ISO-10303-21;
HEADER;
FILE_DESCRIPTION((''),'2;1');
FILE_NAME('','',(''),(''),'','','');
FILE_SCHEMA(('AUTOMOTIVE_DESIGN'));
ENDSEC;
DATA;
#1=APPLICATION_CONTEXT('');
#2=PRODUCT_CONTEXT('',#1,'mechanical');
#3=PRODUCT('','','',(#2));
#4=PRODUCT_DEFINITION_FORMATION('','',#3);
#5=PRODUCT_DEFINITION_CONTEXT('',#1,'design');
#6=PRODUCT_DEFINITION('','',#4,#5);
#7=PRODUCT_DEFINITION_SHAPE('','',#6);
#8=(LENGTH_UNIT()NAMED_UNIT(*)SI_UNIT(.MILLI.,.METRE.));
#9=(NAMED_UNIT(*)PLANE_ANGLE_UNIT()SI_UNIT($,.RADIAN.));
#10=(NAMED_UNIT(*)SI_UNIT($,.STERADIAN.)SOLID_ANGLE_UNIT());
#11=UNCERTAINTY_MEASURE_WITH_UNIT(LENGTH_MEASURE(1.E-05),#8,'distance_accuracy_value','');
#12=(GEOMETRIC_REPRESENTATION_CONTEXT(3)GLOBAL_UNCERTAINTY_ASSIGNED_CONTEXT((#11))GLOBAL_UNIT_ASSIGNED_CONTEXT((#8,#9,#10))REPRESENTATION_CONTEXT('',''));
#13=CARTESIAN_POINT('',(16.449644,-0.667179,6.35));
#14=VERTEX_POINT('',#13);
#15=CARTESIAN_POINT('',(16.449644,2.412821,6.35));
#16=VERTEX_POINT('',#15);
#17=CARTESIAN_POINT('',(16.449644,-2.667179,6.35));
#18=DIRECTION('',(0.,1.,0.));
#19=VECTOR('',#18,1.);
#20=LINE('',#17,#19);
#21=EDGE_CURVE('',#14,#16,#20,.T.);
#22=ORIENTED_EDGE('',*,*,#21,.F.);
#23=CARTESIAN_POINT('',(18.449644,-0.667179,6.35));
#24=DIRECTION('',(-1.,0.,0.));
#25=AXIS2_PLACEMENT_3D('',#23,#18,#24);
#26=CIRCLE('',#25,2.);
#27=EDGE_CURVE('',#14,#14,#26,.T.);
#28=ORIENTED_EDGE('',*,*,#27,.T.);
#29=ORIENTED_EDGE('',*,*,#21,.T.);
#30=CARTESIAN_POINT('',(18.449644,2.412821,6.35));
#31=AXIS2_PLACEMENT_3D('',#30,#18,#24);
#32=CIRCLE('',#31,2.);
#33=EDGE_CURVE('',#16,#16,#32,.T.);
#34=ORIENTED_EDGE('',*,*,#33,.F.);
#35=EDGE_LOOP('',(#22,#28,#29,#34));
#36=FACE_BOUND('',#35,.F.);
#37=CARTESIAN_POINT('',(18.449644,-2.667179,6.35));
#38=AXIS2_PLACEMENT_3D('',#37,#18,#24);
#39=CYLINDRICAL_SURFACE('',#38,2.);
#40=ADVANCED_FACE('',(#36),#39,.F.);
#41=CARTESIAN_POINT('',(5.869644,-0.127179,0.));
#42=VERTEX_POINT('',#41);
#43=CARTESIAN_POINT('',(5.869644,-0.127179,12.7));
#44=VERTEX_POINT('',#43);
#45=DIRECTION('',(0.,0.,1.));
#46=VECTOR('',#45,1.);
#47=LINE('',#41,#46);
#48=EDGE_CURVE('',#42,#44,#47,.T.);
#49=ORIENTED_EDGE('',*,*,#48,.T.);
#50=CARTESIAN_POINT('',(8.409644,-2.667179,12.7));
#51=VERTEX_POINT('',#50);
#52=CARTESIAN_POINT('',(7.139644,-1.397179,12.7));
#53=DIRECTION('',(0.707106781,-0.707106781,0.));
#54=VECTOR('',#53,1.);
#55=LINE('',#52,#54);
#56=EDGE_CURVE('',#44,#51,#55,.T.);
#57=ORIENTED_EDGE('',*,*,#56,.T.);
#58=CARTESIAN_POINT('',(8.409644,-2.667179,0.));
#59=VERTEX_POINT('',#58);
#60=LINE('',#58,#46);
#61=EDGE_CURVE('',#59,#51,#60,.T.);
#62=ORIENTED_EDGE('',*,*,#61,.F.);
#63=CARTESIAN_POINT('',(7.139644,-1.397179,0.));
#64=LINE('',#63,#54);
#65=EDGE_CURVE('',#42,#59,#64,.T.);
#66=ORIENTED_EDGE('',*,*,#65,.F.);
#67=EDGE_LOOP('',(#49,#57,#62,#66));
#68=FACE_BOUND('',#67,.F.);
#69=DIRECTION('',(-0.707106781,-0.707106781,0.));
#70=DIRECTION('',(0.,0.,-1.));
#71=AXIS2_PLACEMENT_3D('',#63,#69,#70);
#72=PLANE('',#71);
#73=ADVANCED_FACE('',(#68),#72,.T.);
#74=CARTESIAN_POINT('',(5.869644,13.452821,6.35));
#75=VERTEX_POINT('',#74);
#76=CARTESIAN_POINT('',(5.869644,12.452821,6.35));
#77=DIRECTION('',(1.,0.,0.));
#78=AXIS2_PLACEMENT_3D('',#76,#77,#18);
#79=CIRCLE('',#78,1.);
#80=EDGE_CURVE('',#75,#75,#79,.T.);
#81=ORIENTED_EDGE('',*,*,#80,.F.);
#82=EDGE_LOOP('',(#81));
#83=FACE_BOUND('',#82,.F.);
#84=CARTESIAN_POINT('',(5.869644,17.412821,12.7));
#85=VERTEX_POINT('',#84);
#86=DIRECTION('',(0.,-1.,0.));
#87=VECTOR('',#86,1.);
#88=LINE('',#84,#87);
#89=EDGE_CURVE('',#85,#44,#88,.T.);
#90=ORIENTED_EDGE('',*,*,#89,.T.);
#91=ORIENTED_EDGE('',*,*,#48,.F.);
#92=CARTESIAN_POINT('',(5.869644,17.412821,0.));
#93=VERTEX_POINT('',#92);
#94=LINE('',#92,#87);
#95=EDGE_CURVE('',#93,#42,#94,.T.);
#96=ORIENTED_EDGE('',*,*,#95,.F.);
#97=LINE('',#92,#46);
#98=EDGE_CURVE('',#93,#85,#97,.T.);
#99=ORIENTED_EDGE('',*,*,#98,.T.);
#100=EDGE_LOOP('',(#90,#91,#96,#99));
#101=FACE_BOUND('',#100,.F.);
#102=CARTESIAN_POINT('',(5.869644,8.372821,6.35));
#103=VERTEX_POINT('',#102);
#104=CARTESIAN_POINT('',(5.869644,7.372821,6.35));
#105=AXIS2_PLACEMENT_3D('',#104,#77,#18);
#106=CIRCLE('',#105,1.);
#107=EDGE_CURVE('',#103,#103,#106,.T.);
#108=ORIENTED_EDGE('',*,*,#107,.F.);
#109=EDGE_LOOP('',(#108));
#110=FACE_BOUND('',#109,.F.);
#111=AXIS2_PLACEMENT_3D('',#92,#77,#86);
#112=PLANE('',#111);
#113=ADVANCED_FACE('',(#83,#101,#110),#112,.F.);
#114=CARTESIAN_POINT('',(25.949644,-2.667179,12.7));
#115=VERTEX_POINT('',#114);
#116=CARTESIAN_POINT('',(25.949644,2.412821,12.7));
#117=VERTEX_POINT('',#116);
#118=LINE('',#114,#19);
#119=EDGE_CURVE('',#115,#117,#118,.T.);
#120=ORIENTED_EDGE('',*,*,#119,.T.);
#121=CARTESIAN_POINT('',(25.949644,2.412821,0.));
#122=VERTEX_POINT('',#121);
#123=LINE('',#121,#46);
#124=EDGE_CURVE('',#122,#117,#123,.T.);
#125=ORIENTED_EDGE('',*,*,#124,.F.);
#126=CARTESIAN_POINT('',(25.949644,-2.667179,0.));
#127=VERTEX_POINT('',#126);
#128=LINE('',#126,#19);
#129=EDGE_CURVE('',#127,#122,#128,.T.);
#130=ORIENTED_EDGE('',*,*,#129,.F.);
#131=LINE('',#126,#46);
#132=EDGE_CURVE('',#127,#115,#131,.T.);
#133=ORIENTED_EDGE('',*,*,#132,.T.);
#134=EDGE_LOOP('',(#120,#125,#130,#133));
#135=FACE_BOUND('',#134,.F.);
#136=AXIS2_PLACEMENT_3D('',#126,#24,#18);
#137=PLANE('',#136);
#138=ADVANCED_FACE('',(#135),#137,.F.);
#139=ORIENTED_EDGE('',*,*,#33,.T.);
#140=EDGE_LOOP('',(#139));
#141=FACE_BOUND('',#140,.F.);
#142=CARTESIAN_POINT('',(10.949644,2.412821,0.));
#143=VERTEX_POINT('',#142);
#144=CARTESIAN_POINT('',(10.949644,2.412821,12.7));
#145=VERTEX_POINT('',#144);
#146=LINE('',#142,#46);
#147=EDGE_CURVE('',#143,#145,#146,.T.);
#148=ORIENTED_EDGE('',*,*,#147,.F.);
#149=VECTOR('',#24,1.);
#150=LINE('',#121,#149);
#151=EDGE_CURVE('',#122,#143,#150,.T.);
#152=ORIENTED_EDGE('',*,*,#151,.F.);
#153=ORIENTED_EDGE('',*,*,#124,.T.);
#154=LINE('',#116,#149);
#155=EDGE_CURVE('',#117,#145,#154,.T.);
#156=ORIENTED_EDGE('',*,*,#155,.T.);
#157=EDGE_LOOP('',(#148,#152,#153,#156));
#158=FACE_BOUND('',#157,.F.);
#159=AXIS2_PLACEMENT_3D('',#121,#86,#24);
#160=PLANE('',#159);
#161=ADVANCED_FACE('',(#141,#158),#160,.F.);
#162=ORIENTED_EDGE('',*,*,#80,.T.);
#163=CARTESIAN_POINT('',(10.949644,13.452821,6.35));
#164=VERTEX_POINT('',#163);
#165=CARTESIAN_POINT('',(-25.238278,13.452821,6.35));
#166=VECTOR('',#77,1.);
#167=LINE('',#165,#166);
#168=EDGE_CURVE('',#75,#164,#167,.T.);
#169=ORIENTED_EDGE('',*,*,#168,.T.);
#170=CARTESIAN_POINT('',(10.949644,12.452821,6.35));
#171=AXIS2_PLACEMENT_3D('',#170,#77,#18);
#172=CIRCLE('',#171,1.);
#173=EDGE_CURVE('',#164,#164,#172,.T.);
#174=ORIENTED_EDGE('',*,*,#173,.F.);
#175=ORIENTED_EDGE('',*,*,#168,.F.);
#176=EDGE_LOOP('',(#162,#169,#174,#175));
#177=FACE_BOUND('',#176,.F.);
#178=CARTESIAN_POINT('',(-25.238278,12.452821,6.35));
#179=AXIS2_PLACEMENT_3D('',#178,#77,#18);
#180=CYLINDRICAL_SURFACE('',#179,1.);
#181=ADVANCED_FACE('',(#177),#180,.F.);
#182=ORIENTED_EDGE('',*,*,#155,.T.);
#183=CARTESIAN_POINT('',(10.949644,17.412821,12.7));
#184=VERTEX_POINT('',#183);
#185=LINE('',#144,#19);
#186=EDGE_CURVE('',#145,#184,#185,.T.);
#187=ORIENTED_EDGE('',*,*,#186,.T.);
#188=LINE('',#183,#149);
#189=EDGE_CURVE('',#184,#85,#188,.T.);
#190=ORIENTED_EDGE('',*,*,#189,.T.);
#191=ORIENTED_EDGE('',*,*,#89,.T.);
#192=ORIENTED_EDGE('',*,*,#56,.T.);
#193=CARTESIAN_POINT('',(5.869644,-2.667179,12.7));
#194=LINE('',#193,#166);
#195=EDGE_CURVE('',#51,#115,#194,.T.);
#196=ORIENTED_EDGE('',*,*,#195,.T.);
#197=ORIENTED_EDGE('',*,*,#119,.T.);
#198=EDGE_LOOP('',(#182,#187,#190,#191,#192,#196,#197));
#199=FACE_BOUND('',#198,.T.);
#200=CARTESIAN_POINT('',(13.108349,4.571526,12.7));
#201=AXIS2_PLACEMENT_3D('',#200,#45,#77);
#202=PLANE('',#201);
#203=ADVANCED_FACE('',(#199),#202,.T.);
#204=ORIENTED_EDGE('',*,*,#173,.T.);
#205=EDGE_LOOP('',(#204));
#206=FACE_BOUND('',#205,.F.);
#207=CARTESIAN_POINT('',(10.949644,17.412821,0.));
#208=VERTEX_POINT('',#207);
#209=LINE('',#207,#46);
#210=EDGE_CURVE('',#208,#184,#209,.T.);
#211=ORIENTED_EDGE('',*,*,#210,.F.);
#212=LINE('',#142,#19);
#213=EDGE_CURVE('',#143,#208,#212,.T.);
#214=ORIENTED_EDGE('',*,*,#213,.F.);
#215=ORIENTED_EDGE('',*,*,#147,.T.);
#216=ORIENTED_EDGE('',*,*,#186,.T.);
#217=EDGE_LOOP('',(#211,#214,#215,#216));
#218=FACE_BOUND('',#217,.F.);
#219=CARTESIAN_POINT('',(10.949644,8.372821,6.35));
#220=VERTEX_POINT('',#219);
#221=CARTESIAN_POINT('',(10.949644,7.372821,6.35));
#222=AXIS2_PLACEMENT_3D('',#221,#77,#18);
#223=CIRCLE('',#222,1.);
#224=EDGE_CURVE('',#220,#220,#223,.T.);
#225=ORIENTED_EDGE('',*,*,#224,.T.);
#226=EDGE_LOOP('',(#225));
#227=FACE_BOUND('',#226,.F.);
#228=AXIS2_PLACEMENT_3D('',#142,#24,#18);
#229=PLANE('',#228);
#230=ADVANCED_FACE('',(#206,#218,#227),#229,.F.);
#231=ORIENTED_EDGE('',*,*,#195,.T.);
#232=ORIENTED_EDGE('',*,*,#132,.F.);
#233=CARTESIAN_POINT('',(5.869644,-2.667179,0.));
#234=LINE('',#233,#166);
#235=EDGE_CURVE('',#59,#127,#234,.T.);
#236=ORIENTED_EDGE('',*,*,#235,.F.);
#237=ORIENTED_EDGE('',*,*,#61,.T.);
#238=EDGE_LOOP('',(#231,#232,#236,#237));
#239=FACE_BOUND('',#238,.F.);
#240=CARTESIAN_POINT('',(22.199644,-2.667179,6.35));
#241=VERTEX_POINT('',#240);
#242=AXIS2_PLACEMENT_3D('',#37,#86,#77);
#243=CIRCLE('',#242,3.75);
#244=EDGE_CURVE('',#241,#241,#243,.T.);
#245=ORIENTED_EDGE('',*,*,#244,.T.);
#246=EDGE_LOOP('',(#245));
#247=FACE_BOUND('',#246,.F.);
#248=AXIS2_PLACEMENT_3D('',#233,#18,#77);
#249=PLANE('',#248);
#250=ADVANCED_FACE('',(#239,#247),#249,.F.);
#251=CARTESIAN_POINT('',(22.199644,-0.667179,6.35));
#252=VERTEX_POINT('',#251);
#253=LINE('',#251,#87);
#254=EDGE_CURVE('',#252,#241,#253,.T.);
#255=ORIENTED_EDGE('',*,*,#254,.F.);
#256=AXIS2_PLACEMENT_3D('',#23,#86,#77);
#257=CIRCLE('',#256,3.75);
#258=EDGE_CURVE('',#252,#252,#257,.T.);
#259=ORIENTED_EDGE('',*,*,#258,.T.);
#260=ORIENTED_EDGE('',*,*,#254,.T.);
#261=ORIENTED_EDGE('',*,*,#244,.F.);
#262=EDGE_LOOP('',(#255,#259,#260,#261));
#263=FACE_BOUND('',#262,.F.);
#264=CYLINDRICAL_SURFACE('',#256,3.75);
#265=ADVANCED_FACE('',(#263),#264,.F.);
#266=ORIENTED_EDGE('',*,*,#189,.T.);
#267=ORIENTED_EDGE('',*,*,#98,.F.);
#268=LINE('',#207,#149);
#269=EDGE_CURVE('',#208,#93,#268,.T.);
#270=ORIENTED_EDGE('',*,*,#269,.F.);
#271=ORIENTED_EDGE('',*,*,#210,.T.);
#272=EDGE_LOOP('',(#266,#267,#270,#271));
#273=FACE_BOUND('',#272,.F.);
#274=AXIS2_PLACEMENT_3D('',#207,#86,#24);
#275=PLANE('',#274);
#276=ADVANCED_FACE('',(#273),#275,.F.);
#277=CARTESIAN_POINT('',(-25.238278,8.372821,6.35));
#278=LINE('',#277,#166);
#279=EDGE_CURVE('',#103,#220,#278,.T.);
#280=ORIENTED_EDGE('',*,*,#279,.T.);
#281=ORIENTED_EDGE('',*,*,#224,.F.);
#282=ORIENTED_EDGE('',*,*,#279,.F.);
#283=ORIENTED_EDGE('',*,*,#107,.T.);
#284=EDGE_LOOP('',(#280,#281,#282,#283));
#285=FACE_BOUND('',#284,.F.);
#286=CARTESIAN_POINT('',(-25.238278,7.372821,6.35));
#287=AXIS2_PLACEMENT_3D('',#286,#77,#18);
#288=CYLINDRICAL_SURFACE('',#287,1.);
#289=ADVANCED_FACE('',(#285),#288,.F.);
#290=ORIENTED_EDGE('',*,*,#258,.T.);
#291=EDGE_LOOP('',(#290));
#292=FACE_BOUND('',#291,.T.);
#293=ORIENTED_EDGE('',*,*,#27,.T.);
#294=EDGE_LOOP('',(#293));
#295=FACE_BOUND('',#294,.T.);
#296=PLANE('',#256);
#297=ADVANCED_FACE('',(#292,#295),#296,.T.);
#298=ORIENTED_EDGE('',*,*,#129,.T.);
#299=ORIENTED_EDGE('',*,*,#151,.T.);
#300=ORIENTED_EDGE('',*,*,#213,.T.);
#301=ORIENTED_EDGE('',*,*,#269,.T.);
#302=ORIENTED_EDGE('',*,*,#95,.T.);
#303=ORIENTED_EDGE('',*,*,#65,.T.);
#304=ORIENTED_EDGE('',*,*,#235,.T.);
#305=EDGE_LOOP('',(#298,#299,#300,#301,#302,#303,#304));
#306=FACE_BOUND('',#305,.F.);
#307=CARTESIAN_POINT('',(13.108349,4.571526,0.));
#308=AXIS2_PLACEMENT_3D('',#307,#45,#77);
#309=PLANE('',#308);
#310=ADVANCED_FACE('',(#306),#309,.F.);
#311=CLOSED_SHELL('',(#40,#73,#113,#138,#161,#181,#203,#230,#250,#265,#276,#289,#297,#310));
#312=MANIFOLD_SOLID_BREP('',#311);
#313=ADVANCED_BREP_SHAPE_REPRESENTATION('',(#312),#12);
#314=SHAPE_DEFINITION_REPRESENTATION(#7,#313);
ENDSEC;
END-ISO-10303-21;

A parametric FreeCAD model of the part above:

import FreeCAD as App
import Part
import Sketcher
Q = App.Units.Quantity


def edges_at(feature, points):
    """Names of the edges that pass closest to the given points."""
    edges = feature.Shape.Edges
    near = lambda p: min(range(len(edges)), key=lambda i: edges[i].distToShape(Part.Vertex(*p))[0])
    return sorted({f"Edge{near(p) + 1}" for p in points})


def add_polygon(sketch, points):
    """Adds a closed chain of lines whose ends are joined by coincident constraints."""
    first, n = sketch.GeometryCount, len(points)
    for a, b in zip(points, points[1:] + points[:1]):
        sketch.addGeometry(Part.LineSegment(App.Vector(*a, 0), App.Vector(*b, 0)), False)
    for i in range(n):
        sketch.addConstraint(Sketcher.Constraint("Coincident", first + i, 2, first + (i + 1) % n, 1))

doc = App.newDocument("Part")
body = doc.addObject("PartDesign::Body", "Body")

sketch1 = body.newObject("Sketcher::SketchObject", "Sketch")
sketch1.AttachmentSupport = (doc.getObject("XY_Plane"), [""])
sketch1.MapMode = "FlatFace"
add_polygon(sketch1, [(11, 17), (6, 17), (6, -3), (26, -3), (26, 2), (11, 2)])
sketch1.addConstraint(Sketcher.Constraint("Horizontal", 0))
sketch1.addConstraint(Sketcher.Constraint("Vertical", 1))
sketch1.addConstraint(Sketcher.Constraint("Horizontal", 2))
sketch1.addConstraint(Sketcher.Constraint("Vertical", 3))
sketch1.addConstraint(Sketcher.Constraint("Horizontal", 4))
sketch1.addConstraint(Sketcher.Constraint("Vertical", 5))
sketch1.addConstraint(Sketcher.Constraint("Equal", 2, 1))
sketch1.addConstraint(Sketcher.Constraint("Equal", 0, 3))
sketch1.addConstraint(Sketcher.Constraint("DistanceX", 4, 2, 4, 1, Q("15 mm")))
sketch1.addConstraint(Sketcher.Constraint("DistanceX", 0, 2, 0, 1, Q("5.08 mm")))
sketch1.addConstraint(Sketcher.Constraint("DistanceY", -1, 1, 0, 2, Q("17.412821 mm")))
sketch1.addConstraint(Sketcher.Constraint("DistanceX", -1, 1, 0, 2, Q("5.869644 mm")))
pad1 = body.newObject("PartDesign::Pad", "Pad")
pad1.Profile = sketch1
pad1.Length = 12.7

sketch2 = body.newObject("Sketcher::SketchObject", "Sketch001")
sketch2.AttachmentSupport = (doc.getObject("XZ_Plane"), [""])
sketch2.MapMode = "FlatFace"
sketch2.AttachmentOffset = App.Placement(App.Vector(0, 0, 2.667179), App.Rotation())
sketch2.addGeometry(Part.Circle(App.Vector(18.4, 6.3, 0), App.Vector(0, 0, 1), 2), False)
sketch2.addConstraint(Sketcher.Constraint("Diameter", 0, Q("4 mm")))
sketch2.addConstraint(Sketcher.Constraint("DistanceY", -1, 1, 0, 3, Q("6.35 mm")))
sketch2.addConstraint(Sketcher.Constraint("DistanceX", -1, 1, 0, 3, Q("18.449644 mm")))
doc.recompute()
hole = body.newObject("PartDesign::Hole", "Hole")
hole.Profile = sketch2
hole.ThreadType = "None"
hole.Diameter = 4
hole.DepthType = "Dimension"
hole.Depth = 12.7
hole.DrillPoint = "Flat"
hole.HoleCutType = "Counterbore"
hole.HoleCutDiameter = 7.5
hole.HoleCutDepth = 2
doc.recompute()

chamfer = body.newObject("PartDesign::Chamfer", "Chamfer")
chamfer.Base = (hole, edges_at(hole, [(5.87, -2.667, 6.35)]))
chamfer.Size = 2.54

sketch3 = body.newObject("Sketcher::SketchObject", "Sketch002")
sketch3.AttachmentSupport = (doc.getObject("YZ_Plane"), [""])
sketch3.MapMode = "FlatFace"
sketch3.AttachmentOffset = App.Placement(App.Vector(0, 0, 5.869644), App.Rotation())
sketch3.addGeometry(Part.Circle(App.Vector(7.4, 6.3, 0), App.Vector(0, 0, 1), 1), False)
sketch3.addGeometry(Part.Circle(App.Vector(12.5, 6.3, 0), App.Vector(0, 0, 1), 1), False)
sketch3.addConstraint(Sketcher.Constraint("Equal", 0, 1))
sketch3.addConstraint(Sketcher.Constraint("Horizontal", 0, 3, 1, 3))
sketch3.addConstraint(Sketcher.Constraint("Diameter", 0, Q("2 mm")))
sketch3.addConstraint(Sketcher.Constraint("DistanceY", -1, 1, 0, 3, Q("6.35 mm")))
sketch3.addConstraint(Sketcher.Constraint("DistanceX", 0, 3, 1, 3, Q("5.08 mm")))
sketch3.addConstraint(Sketcher.Constraint("DistanceX", -1, 1, 0, 3, Q("7.372821 mm")))
doc.recompute()
hole2 = body.newObject("PartDesign::Hole", "Hole001")
hole2.Profile = sketch3
hole2.ThreadType = "None"
hole2.Diameter = 2
hole2.DepthType = "ThroughAll"
hole2.Reversed = True

doc.recompute()
